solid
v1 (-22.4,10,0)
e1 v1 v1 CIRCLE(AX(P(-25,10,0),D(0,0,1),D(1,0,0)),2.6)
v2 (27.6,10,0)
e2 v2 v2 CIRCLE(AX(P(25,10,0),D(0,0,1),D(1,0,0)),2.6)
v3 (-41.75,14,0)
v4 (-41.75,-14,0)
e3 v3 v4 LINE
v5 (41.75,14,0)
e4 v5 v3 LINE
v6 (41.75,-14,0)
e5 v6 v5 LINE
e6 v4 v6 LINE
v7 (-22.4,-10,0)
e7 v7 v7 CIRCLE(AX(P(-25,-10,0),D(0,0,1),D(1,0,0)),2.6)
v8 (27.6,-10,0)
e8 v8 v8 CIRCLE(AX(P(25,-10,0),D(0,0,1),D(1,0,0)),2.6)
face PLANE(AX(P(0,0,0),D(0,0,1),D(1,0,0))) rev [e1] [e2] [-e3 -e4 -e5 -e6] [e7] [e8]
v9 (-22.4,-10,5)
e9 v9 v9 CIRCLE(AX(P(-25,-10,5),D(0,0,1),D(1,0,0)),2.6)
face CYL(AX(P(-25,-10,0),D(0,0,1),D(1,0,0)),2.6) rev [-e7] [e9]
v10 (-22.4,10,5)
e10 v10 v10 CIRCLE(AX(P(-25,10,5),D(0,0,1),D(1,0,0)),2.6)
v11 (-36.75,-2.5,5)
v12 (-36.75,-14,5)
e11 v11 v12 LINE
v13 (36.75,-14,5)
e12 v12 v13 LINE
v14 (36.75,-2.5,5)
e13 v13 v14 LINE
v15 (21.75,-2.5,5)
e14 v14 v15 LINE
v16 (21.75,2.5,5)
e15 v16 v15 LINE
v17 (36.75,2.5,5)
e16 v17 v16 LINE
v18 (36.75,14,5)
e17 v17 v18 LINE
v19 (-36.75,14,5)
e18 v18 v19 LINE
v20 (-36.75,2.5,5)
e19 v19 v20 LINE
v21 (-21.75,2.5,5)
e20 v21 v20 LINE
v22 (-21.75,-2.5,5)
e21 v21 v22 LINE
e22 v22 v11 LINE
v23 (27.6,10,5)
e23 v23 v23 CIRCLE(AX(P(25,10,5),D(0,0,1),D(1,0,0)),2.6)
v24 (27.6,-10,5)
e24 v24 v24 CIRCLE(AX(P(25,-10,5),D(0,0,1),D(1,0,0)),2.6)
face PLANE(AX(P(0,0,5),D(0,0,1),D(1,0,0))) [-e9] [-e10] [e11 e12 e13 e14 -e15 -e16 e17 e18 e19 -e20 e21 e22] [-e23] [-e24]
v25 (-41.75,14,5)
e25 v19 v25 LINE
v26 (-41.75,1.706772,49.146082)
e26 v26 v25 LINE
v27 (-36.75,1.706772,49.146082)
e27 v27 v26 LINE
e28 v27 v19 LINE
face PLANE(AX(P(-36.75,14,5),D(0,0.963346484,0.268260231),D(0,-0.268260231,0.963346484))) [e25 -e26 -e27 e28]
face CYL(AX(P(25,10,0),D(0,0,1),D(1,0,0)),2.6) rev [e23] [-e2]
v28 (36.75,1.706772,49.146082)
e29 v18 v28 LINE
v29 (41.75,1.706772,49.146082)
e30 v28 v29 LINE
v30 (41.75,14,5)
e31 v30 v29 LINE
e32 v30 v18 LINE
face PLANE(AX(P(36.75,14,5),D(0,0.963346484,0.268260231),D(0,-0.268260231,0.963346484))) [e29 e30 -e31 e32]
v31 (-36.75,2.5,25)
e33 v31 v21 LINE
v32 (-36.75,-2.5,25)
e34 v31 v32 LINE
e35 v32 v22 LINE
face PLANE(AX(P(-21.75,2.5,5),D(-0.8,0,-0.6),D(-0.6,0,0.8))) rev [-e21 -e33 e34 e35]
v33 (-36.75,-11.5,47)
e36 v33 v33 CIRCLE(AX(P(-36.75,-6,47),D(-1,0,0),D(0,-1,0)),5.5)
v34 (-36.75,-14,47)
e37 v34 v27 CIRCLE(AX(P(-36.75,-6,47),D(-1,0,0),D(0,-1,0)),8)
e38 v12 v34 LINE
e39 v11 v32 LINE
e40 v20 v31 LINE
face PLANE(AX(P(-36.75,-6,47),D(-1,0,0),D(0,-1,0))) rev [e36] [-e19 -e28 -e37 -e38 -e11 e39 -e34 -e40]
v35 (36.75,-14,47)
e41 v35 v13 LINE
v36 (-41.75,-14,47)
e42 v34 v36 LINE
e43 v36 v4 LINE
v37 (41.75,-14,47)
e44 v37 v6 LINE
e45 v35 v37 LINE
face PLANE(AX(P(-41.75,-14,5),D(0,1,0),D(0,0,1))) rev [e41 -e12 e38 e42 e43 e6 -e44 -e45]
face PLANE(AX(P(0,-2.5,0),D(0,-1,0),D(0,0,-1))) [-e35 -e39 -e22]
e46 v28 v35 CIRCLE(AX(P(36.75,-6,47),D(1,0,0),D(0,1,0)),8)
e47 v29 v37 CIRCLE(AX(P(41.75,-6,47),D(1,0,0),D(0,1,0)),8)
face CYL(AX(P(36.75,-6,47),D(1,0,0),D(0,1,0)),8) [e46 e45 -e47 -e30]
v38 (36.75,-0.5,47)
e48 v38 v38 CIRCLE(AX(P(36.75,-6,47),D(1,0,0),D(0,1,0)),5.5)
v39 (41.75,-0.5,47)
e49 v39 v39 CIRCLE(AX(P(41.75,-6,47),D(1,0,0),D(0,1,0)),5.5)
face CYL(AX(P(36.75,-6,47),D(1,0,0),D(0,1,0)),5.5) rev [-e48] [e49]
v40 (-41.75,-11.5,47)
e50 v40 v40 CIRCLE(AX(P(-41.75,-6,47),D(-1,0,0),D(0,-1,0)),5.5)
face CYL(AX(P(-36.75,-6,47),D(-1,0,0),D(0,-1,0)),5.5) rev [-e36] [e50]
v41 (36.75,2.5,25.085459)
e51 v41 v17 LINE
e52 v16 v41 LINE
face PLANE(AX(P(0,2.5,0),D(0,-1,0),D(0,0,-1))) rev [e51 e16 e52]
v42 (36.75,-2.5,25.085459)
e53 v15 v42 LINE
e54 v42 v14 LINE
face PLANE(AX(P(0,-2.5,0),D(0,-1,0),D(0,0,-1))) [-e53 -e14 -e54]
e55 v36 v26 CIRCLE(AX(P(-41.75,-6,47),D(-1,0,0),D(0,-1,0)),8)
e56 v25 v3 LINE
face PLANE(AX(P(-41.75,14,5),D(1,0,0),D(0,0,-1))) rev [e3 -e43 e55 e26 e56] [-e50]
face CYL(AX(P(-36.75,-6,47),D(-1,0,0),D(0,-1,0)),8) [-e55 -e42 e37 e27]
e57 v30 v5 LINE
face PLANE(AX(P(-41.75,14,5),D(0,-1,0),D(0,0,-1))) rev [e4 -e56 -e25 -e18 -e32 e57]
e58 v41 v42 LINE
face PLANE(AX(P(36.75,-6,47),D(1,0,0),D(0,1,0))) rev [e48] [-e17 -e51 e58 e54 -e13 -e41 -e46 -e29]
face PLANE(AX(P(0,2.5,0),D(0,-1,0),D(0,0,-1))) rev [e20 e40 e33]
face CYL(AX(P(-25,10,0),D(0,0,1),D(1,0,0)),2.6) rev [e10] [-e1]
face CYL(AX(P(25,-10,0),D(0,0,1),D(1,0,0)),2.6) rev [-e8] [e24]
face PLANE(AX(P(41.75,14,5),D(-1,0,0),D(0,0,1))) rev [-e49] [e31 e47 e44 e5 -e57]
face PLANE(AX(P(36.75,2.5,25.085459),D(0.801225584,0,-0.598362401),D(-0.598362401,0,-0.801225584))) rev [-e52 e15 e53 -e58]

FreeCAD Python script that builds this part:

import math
import FreeCAD as App
import Part
import Sketcher
Q = App.Units.Quantity


def add_polygon(sketch, points):
    """Adds a closed chain of lines whose ends are joined by coincident constraints."""
    first, n = sketch.GeometryCount, len(points)
    for a, b in zip(points, points[1:] + points[:1]):
        sketch.addGeometry(Part.LineSegment(App.Vector(*a, 0), App.Vector(*b, 0)), False)
    for i in range(n):
        sketch.addConstraint(Sketcher.Constraint("Coincident", first + i, 2, first + (i + 1) % n, 1))

doc = App.newDocument("Part")
body = doc.addObject("PartDesign::Body", "Body")

# Sketch on XY plane
sketch1 = body.newObject("Sketcher::SketchObject", "Sketch")
sketch1.AttachmentSupport = (doc.getObject("XY_Plane"), [""])
sketch1.MapMode = "FlatFace"
add_polygon(sketch1, [(-42, 14), (-42, -14), (42, -14), (42, 14)])  # lines 0-3
sketch1.addConstraint(Sketcher.Constraint("Vertical", 0))
sketch1.addConstraint(Sketcher.Constraint("Horizontal", 1))
sketch1.addConstraint(Sketcher.Constraint("Vertical", 2))
sketch1.addConstraint(Sketcher.Constraint("Horizontal", 3))
sketch1.addConstraint(Sketcher.Constraint("Symmetric", 0, 2, 2, 2, -1, 1))
sketch1.addConstraint(Sketcher.Constraint("DistanceY", 0, 2, 0, 1, Q("28 mm")))
sketch1.addConstraint(Sketcher.Constraint("DistanceX", 1, 1, 1, 2, Q("83.5 mm")))
pad1 = body.newObject("PartDesign::Pad", "Pad")
pad1.Profile = sketch1
pad1.Length = 5

# Sketch on YZ plane
sketch2 = body.newObject("Sketcher::SketchObject", "Sketch001")
sketch2.AttachmentSupport = (doc.getObject("YZ_Plane"), [""])
sketch2.MapMode = "FlatFace"
sketch2.AttachmentOffset = App.Placement(App.Vector(0, 0, -41.75), App.Rotation())
sketch2.addGeometry(Part.LineSegment(App.Vector(14, 5, 0), App.Vector(-14, 5, 0)), False)
sketch2.addGeometry(Part.LineSegment(App.Vector(-14, 5, 0), App.Vector(-14, 47, 0)), False)
sketch2.addGeometry(Part.ArcOfCircle(Part.Circle(App.Vector(-6, 47, 0), App.Vector(0, 0, 1), 8), math.radians(16), math.radians(180)), False)
sketch2.addGeometry(Part.LineSegment(App.Vector(2, 49, 0), App.Vector(14, 5, 0)), False)
sketch2.addGeometry(Part.Circle(App.Vector(-6, 47, 0), App.Vector(0, 0, 1), 6), False)
sketch2.addConstraint(Sketcher.Constraint("Coincident", 0, 2, 1, 1))
sketch2.addConstraint(Sketcher.Constraint("Tangent", 1, 2, 2, 2))
sketch2.addConstraint(Sketcher.Constraint("Tangent", 2, 1, 3, 1))
sketch2.addConstraint(Sketcher.Constraint("Coincident", 3, 2, 0, 1))
sketch2.addConstraint(Sketcher.Constraint("Horizontal", 0))
sketch2.addConstraint(Sketcher.Constraint("Vertical", 1))
sketch2.addConstraint(Sketcher.Constraint("Coincident", 4, 3, 2, 3))
sketch2.addConstraint(Sketcher.Constraint("Diameter", 4, Q("11 mm")))
sketch2.addConstraint(Sketcher.Constraint("Radius", 2, Q("8 mm")))
sketch2.addConstraint(Sketcher.Constraint("DistanceX", 0, 2, 0, 1, Q("28 mm")))
sketch2.addConstraint(Sketcher.Constraint("DistanceY", 1, 1, 1, 2, Q("42 mm")))
sketch2.addConstraint(Sketcher.Constraint("DistanceX", 2, 3, -1, 1, Q("6 mm")))
sketch2.addConstraint(Sketcher.Constraint("DistanceY", -1, 1, 2, 3, Q("47 mm")))
pad2 = body.newObject("PartDesign::Pad", "Pad001")
pad2.Profile = sketch2
pad2.Length = 5

# Sketch on YZ plane
sketch3 = body.newObject("Sketcher::SketchObject", "Sketch002")
sketch3.AttachmentSupport = (doc.getObject("YZ_Plane"), [""])
sketch3.MapMode = "FlatFace"
sketch3.AttachmentOffset = App.Placement(App.Vector(0, 0, 36.75), App.Rotation())
sketch3.addGeometry(Part.LineSegment(App.Vector(14, 5, 0), App.Vector(2, 49, 0)), False)
sketch3.addGeometry(Part.ArcOfCircle(Part.Circle(App.Vector(-6, 47, 0), App.Vector(0, 0, 1), 8), math.radians(16), math.radians(180)), False)
sketch3.addGeometry(Part.LineSegment(App.Vector(-14, 47, 0), App.Vector(-14, 5, 0)), False)
sketch3.addGeometry(Part.LineSegment(App.Vector(-14, 5, 0), App.Vector(14, 5, 0)), False)
sketch3.addGeometry(Part.Circle(App.Vector(-6, 47, 0), App.Vector(0, 0, 1), 6), False)
sketch3.addConstraint(Sketcher.Constraint("Tangent", 0, 2, 1, 1))
sketch3.addConstraint(Sketcher.Constraint("Tangent", 1, 2, 2, 1))
sketch3.addConstraint(Sketcher.Constraint("Coincident", 2, 2, 3, 1))
sketch3.addConstraint(Sketcher.Constraint("Coincident", 3, 2, 0, 1))
sketch3.addConstraint(Sketcher.Constraint("Vertical", 2))
sketch3.addConstraint(Sketcher.Constraint("Horizontal", 3))
sketch3.addConstraint(Sketcher.Constraint("Coincident", 4, 3, 1, 3))
sketch3.addConstraint(Sketcher.Constraint("Diameter", 4, Q("11 mm")))
sketch3.addConstraint(Sketcher.Constraint("Radius", 1, Q("8 mm")))
sketch3.addConstraint(Sketcher.Constraint("DistanceX", 3, 1, 3, 2, Q("28 mm")))
sketch3.addConstraint(Sketcher.Constraint("DistanceY", 2, 2, 2, 1, Q("42 mm")))
sketch3.addConstraint(Sketcher.Constraint("DistanceX", 1, 3, -1, 1, Q("6 mm")))
sketch3.addConstraint(Sketcher.Constraint("DistanceY", -1, 1, 1, 3, Q("47 mm")))
pad3 = body.newObject("PartDesign::Pad", "Pad002")
pad3.Profile = sketch3
pad3.Length = 5

# Sketch on XY plane
sketch4 = body.newObject("Sketcher::SketchObject", "Sketch003")
sketch4.AttachmentSupport = (doc.getObject("XY_Plane"), [""])
sketch4.MapMode = "FlatFace"
sketch4.AttachmentOffset = App.Placement(App.Vector(0, 0, 5), App.Rotation())
sketch4.addGeometry(Part.Circle(App.Vector(-25, 10, 0), App.Vector(0, 0, 1), 2.6), False)
sketch4.addGeometry(Part.Circle(App.Vector(25, 10, 0), App.Vector(0, 0, 1), 2.6), False)
sketch4.addGeometry(Part.Circle(App.Vector(25, -10, 0), App.Vector(0, 0, 1), 2.6), False)
sketch4.addGeometry(Part.Circle(App.Vector(-25, -10, 0), App.Vector(0, 0, 1), 2.6), False)
sketch4.addConstraint(Sketcher.Constraint("Equal", 0, 1))
sketch4.addConstraint(Sketcher.Constraint("Equal", 1, 2))
sketch4.addConstraint(Sketcher.Constraint("Equal", 2, 3))
sketch4.addConstraint(Sketcher.Constraint("Symmetric", 0, 3, 2, 3, -1, 1))
sketch4.addConstraint(Sketcher.Constraint("Symmetric", 1, 3, 3, 3, -1, 1))
sketch4.addConstraint(Sketcher.Constraint("Symmetric", 0, 3, 1, 3, -2))
sketch4.addConstraint(Sketcher.Constraint("Diameter", 0, Q("5.2 mm")))
sketch4.addConstraint(Sketcher.Constraint("DistanceX", 0, 3, -1, 1, Q("25 mm")))
sketch4.addConstraint(Sketcher.Constraint("DistanceY", -1, 1, 0, 3, Q("10 mm")))
pocket1 = body.newObject("PartDesign::Pocket", "Pocket")
pocket1.Profile = sketch4
pocket1.Length = 5

# Sketch on XZ plane
sketch5 = body.newObject("Sketcher::SketchObject", "Sketch004")
sketch5.AttachmentSupport = (doc.getObject("XZ_Plane"), [""])
sketch5.MapMode = "FlatFace"
add_polygon(sketch5, [(-22, 5), (-37, 5), (-37, 25)])  # lines 0-2
add_polygon(sketch5, [(37, 25), (37, 5), (22, 5)])  # lines 3-5
sketch5.addConstraint(Sketcher.Constraint("Horizontal", 0))
sketch5.addConstraint(Sketcher.Constraint("Vertical", 1))
sketch5.addConstraint(Sketcher.Constraint("Vertical", 3))
sketch5.addConstraint(Sketcher.Constraint("Horizontal", 4))
sketch5.addConstraint(Sketcher.Constraint("Symmetric", 0, 2, 3, 2, -2))
sketch5.addConstraint(Sketcher.Constraint("Equal", 0, 4))
sketch5.addConstraint(Sketcher.Constraint("DistanceX", 0, 2, 0, 1, Q("15 mm")))
sketch5.addConstraint(Sketcher.Constraint("DistanceY", 1, 1, 1, 2, Q("20 mm")))
sketch5.addConstraint(Sketcher.Constraint("DistanceY", -1, 1, 0, 2, Q("5 mm")))
sketch5.addConstraint(Sketcher.Constraint("DistanceX", 2, 2, 3, 2, Q("58.5 mm")))
sketch5.addConstraint(Sketcher.Constraint("DistanceY", 3, 2, 3, 1, Q("20.085459 mm")))
pad4 = body.newObject("PartDesign::Pad", "Pad003")
pad4.Profile = sketch5
pad4.Length = 5
pad4.Midplane = True

doc.recompute()
